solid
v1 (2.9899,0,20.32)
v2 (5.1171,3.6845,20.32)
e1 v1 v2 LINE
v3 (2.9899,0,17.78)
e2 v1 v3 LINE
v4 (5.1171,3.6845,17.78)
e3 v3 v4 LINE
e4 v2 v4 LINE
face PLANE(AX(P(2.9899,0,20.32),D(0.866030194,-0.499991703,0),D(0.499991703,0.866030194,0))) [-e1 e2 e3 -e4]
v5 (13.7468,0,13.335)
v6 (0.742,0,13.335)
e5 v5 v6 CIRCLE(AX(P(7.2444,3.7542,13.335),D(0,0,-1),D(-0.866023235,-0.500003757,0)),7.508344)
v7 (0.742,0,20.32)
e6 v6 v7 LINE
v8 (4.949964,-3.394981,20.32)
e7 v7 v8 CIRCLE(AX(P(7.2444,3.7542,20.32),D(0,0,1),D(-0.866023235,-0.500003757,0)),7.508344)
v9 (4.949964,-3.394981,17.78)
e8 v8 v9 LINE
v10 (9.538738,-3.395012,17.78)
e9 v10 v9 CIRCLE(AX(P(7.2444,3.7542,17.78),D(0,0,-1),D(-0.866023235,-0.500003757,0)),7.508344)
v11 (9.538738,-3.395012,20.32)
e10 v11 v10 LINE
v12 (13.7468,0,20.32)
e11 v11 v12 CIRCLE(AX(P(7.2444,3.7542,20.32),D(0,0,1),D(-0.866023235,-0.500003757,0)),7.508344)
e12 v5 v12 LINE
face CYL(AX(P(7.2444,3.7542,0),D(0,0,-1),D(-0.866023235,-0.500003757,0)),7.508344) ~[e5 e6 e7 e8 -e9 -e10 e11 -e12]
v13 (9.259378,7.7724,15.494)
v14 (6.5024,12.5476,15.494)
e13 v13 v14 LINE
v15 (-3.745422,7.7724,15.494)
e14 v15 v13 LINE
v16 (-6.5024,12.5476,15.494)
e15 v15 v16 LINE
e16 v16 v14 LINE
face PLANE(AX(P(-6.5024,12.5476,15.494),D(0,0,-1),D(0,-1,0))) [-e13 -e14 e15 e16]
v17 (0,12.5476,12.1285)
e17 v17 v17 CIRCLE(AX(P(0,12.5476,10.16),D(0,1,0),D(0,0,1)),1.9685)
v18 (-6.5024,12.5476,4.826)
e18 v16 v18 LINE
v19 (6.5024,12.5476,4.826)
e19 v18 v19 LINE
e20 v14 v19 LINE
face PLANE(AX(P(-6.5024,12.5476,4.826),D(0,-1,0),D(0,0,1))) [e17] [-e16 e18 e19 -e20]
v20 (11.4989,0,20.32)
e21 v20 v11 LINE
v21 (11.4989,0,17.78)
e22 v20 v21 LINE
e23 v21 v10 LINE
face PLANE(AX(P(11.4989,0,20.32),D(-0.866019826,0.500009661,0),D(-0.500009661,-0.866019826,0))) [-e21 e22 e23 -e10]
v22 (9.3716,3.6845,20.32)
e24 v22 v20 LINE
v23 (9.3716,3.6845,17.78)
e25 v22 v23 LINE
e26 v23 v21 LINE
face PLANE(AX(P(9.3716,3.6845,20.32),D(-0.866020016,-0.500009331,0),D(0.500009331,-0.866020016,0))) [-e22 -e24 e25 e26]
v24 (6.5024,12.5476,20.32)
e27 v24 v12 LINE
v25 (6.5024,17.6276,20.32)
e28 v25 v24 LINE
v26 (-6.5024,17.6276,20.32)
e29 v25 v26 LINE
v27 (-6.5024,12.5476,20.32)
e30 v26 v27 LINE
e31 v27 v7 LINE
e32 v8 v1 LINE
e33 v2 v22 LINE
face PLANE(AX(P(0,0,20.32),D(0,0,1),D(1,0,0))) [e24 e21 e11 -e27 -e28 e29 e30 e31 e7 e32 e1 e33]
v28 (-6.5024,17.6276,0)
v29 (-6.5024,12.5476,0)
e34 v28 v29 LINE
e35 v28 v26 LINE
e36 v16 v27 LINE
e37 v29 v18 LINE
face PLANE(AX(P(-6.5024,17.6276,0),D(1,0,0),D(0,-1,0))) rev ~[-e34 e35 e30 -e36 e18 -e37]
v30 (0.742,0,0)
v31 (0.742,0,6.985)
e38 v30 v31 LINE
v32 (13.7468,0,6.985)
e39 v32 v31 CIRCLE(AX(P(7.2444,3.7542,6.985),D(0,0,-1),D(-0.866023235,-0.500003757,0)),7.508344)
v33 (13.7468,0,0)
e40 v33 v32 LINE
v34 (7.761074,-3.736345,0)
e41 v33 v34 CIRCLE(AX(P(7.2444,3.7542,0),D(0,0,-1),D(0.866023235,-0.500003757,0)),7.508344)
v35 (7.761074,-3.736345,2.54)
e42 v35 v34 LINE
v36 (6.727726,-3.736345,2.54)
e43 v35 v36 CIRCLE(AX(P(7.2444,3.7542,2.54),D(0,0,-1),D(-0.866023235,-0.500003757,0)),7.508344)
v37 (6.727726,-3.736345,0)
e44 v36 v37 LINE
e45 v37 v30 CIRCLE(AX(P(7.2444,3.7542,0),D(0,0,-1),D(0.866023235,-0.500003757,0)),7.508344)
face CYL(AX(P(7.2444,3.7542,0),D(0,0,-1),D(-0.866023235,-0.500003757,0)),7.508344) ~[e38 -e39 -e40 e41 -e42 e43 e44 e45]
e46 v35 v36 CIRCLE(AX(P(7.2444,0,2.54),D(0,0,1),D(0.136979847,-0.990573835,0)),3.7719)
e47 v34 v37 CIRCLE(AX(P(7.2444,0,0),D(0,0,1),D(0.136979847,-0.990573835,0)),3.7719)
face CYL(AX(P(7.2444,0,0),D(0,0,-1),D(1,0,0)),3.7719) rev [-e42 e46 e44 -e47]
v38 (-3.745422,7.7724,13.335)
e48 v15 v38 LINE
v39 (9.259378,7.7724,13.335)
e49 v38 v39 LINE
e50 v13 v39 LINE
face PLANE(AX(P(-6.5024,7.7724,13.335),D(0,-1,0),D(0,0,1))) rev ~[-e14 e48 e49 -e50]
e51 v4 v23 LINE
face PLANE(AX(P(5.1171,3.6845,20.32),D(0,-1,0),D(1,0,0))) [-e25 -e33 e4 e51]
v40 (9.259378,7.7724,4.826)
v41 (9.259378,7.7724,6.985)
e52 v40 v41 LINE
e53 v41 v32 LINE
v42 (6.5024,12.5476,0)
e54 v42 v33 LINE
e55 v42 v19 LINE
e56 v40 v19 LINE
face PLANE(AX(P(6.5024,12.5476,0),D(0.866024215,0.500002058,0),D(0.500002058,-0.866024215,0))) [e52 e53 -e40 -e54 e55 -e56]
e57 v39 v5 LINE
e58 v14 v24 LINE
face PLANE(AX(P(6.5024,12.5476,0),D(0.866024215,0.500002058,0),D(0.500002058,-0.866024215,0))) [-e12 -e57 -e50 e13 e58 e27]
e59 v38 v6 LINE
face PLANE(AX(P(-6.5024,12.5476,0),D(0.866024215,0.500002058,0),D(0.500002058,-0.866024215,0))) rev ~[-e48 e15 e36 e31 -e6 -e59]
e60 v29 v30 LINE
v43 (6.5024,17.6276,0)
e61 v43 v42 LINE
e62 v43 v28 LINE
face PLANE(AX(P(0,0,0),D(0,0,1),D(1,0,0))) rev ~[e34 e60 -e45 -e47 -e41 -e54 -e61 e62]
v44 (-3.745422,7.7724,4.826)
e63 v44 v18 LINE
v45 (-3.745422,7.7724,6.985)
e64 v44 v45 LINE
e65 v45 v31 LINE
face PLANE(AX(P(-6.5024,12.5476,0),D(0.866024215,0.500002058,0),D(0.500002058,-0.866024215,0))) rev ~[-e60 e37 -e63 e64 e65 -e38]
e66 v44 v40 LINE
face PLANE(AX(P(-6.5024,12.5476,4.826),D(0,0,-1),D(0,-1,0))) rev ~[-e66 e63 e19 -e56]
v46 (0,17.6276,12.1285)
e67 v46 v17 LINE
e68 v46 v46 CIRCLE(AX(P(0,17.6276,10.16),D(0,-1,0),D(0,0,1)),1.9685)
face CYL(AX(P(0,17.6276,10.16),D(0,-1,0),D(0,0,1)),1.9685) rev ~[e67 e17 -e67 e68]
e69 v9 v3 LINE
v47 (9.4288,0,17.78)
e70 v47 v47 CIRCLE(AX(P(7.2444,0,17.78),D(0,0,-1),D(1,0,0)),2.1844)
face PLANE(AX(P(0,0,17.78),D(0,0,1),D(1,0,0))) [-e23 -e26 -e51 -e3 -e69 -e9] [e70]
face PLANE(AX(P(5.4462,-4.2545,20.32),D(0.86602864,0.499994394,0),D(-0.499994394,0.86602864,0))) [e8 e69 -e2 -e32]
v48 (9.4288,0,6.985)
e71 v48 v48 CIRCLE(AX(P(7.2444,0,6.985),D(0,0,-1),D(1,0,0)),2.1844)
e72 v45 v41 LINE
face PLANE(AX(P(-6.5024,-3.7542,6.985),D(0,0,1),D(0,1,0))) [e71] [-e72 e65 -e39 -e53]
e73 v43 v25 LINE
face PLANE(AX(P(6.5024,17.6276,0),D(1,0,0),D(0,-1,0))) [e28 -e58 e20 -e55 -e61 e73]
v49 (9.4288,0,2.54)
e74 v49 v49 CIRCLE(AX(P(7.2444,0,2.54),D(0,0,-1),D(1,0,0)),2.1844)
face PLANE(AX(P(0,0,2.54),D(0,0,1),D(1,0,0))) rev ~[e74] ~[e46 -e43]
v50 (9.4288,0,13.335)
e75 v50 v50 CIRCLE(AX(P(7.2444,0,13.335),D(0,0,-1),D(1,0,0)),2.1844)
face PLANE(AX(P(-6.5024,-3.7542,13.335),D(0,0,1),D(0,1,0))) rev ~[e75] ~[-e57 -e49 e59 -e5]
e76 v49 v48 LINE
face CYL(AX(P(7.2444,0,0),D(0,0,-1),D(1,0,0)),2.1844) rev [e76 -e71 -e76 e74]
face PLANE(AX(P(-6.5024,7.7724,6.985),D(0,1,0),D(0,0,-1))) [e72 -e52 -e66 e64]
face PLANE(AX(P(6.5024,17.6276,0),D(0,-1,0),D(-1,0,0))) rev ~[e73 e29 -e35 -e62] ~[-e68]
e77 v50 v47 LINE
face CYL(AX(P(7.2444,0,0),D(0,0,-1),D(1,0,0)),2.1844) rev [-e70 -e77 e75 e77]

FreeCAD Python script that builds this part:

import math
import FreeCAD as App
import Part
import Sketcher
Q = App.Units.Quantity

doc = App.newDocument("Part")
params = doc.addObject("Spreadsheet::Sheet", "Params")
for row, (alias, value) in enumerate([
    ("sketch1_height", "0.2 in"),
    ("sketch1_width", "0.512 in"),
    ("pad1_length", "0.8 in"),
    ("sketch2_diameter", "0.155 in"),
    ("hole_diameter", "0.155 in"),
    ("sketch3_width", "0.188 in"),
    ("sketch3_height", "0.42 in"),
    ("sketch3_height2", "0.25 in"),
    ("sketch4_diameter", "0.297 in"),
    ("pocket2_length", "0.1 in"),
    ("sketch5_diameter", "0.172 in"),
    ("pocket4_length", "0.1 in"),
], start=1):
    params.set(f"A{row}", alias)
    params.set(f"B{row}", "=" + value)
    params.setAlias(f"B{row}", alias)

body = doc.addObject("PartDesign::Body", "Body")

sketch1 = body.newObject("Sketcher::SketchObject", "Sketch")
sketch1.AttachmentSupport = (doc.getObject("XY_Plane"), [""])
sketch1.MapMode = "FlatFace"
sketch1.addGeometry([
    Part.LineSegment(App.Vector(7, 13, 0), App.Vector(7, 18, 0)),
    Part.LineSegment(App.Vector(7, 18, 0), App.Vector(-7, 18, 0)),
    Part.LineSegment(App.Vector(-7, 18, 0), App.Vector(-7, 13, 0)),
    Part.LineSegment(App.Vector(-7, 13, 0), App.Vector(1, 0, 0)),
    Part.ArcOfCircle(Part.Circle(App.Vector(7, 4, 0), App.Vector(0, 0, 1), 8), math.radians(-150), math.radians(-30)),
    Part.LineSegment(App.Vector(14, 0, 0), App.Vector(7, 13, 0)),
], False)
sketch1.addConstraint([
    Sketcher.Constraint("Coincident", 0, 2, 1, 1),
    Sketcher.Constraint("Coincident", 1, 2, 2, 1),
    Sketcher.Constraint("Coincident", 2, 2, 3, 1),
    Sketcher.Constraint("Tangent", 3, 2, 4, 1),
    Sketcher.Constraint("Coincident", 4, 2, 5, 1),
    Sketcher.Constraint("Coincident", 5, 2, 0, 1),
    Sketcher.Constraint("Vertical", 0),
    Sketcher.Constraint("Horizontal", 1),
    Sketcher.Constraint("Vertical", 2),
    Sketcher.Constraint("Symmetric", 2, 2, 5, 2, -2),
    Sketcher.Constraint("PointOnObject", 3, 2, -1),
    Sketcher.Constraint("PointOnObject", 4, 2, -1),
    Sketcher.Constraint("Parallel", 3, 5),
    Sketcher.Constraint("DistanceY", 0, 1, 0, 2, Q("0.2 in")),
    Sketcher.Constraint("Angle", 3, Q("-59.9999 deg")),
    Sketcher.Constraint("DistanceX", 1, 2, 1, 1, Q("0.512 in")),
    Sketcher.Constraint("DistanceY", -1, 1, 0, 2, Q("0.694 in")),
])
sketch1.setExpression("Constraints[13]", "Params.sketch1_height")
sketch1.setExpression("Constraints[15]", "Params.sketch1_width")
pad1 = body.newObject("PartDesign::Pad", "Pad")
pad1.Profile = sketch1
pad1.setExpression("Length", "Params.pad1_length")

sketch2 = body.newObject("Sketcher::SketchObject", "Sketch001")
sketch2.AttachmentSupport = (doc.getObject("XZ_Plane"), [""])
sketch2.MapMode = "FlatFace"
sketch2.AttachmentOffset = App.Placement(App.Vector(0, 0, -0.694 * 25.4), App.Rotation())
sketch2.addGeometry(Part.Circle(App.Vector(0, 10.2, 0), App.Vector(0, 0, 1), 2), False)
sketch2.addConstraint([
    Sketcher.Constraint("PointOnObject", 0, 3, -2),
    Sketcher.Constraint("Diameter", 0, Q("0.155 in")),
    Sketcher.Constraint("DistanceY", -1, 1, 0, 3, Q("0.4 in")),
])
sketch2.setExpression("Constraints[1]", "Params.sketch2_diameter")
doc.recompute()
hole = body.newObject("PartDesign::Hole", "Hole")
hole.Profile = sketch2
hole.ThreadType = "None"
hole.setExpression("Diameter", "Params.hole_diameter")
hole.DepthType = "ThroughAll"
hole.Reversed = True

sketch3 = body.newObject("Sketcher::SketchObject", "Sketch002")
sketch3.AttachmentSupport = (doc.getObject("YZ_Plane"), [""])
sketch3.MapMode = "FlatFace"
sketch3.AttachmentOffset = App.Placement(App.Vector(0, 0, -0.256 * 25.4), App.Rotation())
sketch3.addGeometry([
    Part.LineSegment(App.Vector(12.5, 15.5, 0), App.Vector(12.5, 4.8, 0)),
    Part.LineSegment(App.Vector(12.5, 4.8, 0), App.Vector(7.8, 4.8, 0)),
    Part.LineSegment(App.Vector(7.8, 4.8, 0), App.Vector(7.8, 7, 0)),
    Part.LineSegment(App.Vector(7.8, 7, 0), App.Vector(-3.8, 7, 0)),
    Part.LineSegment(App.Vector(-3.8, 7, 0), App.Vector(-3.8, 13.3, 0)),
    Part.LineSegment(App.Vector(-3.8, 13.3, 0), App.Vector(7.8, 13.3, 0)),
    Part.LineSegment(App.Vector(7.8, 13.3, 0), App.Vector(7.8, 15.5, 0)),
    Part.LineSegment(App.Vector(7.8, 15.5, 0), App.Vector(12.5, 15.5, 0)),
], False)
sketch3.addConstraint([
    Sketcher.Constraint("Coincident", 0, 2, 1, 1),
    Sketcher.Constraint("Coincident", 1, 2, 2, 1),
    Sketcher.Constraint("Coincident", 2, 2, 3, 1),
    Sketcher.Constraint("Coincident", 3, 2, 4, 1),
    Sketcher.Constraint("Coincident", 4, 2, 5, 1),
    Sketcher.Constraint("Coincident", 5, 2, 6, 1),
    Sketcher.Constraint("Coincident", 6, 2, 7, 1),
    Sketcher.Constraint("Coincident", 7, 2, 0, 1),
    Sketcher.Constraint("Vertical", 0),
    Sketcher.Constraint("Horizontal", 1),
    Sketcher.Constraint("Vertical", 2),
    Sketcher.Constraint("Horizontal", 3),
    Sketcher.Constraint("Vertical", 4),
    Sketcher.Constraint("Horizontal", 5),
    Sketcher.Constraint("Vertical", 6),
    Sketcher.Constraint("Horizontal", 7),
    Sketcher.Constraint("Vertical", 2, 2, 5, 2),
    Sketcher.Constraint("Equal", 2, 6),
    Sketcher.Constraint("DistanceX", 1, 2, 1, 1, Q("0.188 in")),
    Sketcher.Constraint("DistanceY", 0, 2, 0, 1, Q("0.42 in")),
    Sketcher.Constraint("DistanceY", 4, 1, 4, 2, Q("0.25 in")),
    Sketcher.Constraint("DistanceY", -1, 1, 0, 2, Q("0.19 in")),
    Sketcher.Constraint("DistanceX", 3, 2, 3, 1, Q("0.4538 in")),
    Sketcher.Constraint("DistanceX", -1, 1, 0, 2, Q("0.494 in")),
])
sketch3.setExpression("Constraints[18]", "Params.sketch3_width")
sketch3.setExpression("Constraints[19]", "Params.sketch3_height")
sketch3.setExpression("Constraints[20]", "Params.sketch3_height2")
pocket1 = body.newObject("PartDesign::Pocket", "Pocket")
pocket1.Profile = sketch3
pocket1.Type = "ThroughAll"
pocket1.Reversed = True

sketch4 = body.newObject("Sketcher::SketchObject", "Sketch003")
sketch4.AttachmentSupport = (doc.getObject("XY_Plane"), [""])
sketch4.MapMode = "FlatFace"
sketch4.addGeometry(Part.Circle(App.Vector(7.2, 0, 0), App.Vector(0, 0, 1), 3.8), False)
sketch4.addConstraint([
    Sketcher.Constraint("PointOnObject", 0, 3, -1),
    Sketcher.Constraint("Diameter", 0, Q("0.297 in")),
    Sketcher.Constraint("DistanceX", -1, 1, 0, 3, 7.2444),
])
sketch4.setExpression("Constraints[1]", "Params.sketch4_diameter")
pocket2 = body.newObject("PartDesign::Pocket", "Pocket001")
pocket2.Profile = sketch4
pocket2.setExpression("Length", "Params.pocket2_length")
pocket2.Reversed = True

sketch5 = body.newObject("Sketcher::SketchObject", "Sketch004")
sketch5.AttachmentSupport = (doc.getObject("XY_Plane"), [""])
sketch5.MapMode = "FlatFace"
sketch5.addGeometry(Part.Circle(App.Vector(7.2, 0, 0), App.Vector(0, 0, 1), 2.2), False)
sketch5.addConstraint([
    Sketcher.Constraint("PointOnObject", 0, 3, -1),
    Sketcher.Constraint("Diameter", 0, Q("0.172 in")),
    Sketcher.Constraint("DistanceX", -1, 1, 0, 3, 7.2444),
])
sketch5.setExpression("Constraints[1]", "Params.sketch5_diameter")
pocket3 = body.newObject("PartDesign::Pocket", "Pocket002")
pocket3.Profile = sketch5
pocket3.Type = "ThroughAll"
pocket3.Reversed = True

sketch6 = body.newObject("Sketcher::SketchObject", "Sketch005")
sketch6.AttachmentSupport = (doc.getObject("XY_Plane"), [""])
sketch6.MapMode = "FlatFace"
sketch6.AttachmentOffset = App.Placement(App.Vector(0, 0, 0.8 * 25.4), App.Rotation())
sketch6.addGeometry([
    Part.LineSegment(App.Vector(9, -4.3, 0), App.Vector(11.5, 0, 0)),
    Part.LineSegment(App.Vector(11.5, 0, 0), App.Vector(9.4, 3.7, 0)),
    Part.LineSegment(App.Vector(9.4, 3.7, 0), App.Vector(5.1, 3.7, 0)),
    Part.LineSegment(App.Vector(5.1, 3.7, 0), App.Vector(3, 0, 0)),
    Part.LineSegment(App.Vector(3, 0, 0), App.Vector(5.4, -4.3, 0)),
    Part.LineSegment(App.Vector(5.4, -4.3, 0), App.Vector(9, -4.3, 0)),
], False)
sketch6.addConstraint([
    Sketcher.Constraint("Coincident", 0, 2, 1, 1),
    Sketcher.Constraint("Coincident", 1, 2, 2, 1),
    Sketcher.Constraint("Coincident", 2, 2, 3, 1),
    Sketcher.Constraint("Coincident", 3, 2, 4, 1),
    Sketcher.Constraint("Coincident", 4, 2, 5, 1),
    Sketcher.Constraint("Coincident", 5, 2, 0, 1),
    Sketcher.Constraint("Horizontal", 2),
    Sketcher.Constraint("Horizontal", 5),
    Sketcher.Constraint("PointOnObject", 0, 2, -1),
    Sketcher.Constraint("PointOnObject", 3, 2, -1),
    Sketcher.Constraint("Parallel", 0, 3),
    Sketcher.Constraint("Parallel", 1, 4),
    Sketcher.Constraint("Equal", 1, 3),
    Sketcher.Constraint("Angle", 0, Q("59.9994 deg")),
    Sketcher.Constraint("DistanceX", 3, 2, 0, 2, Q("0.335 in")),
    Sketcher.Constraint("DistanceX", 2, 2, 2, 1, Q("0.1675 in")),
    Sketcher.Constraint("DistanceX", -1, 1, 5, 2, Q("0.356 in")),
    Sketcher.Constraint("Distance", 4, Q("0.1934 in")),
])
pocket4 = body.newObject("PartDesign::Pocket", "Pocket003")
pocket4.Profile = sketch6
pocket4.setExpression("Length", "Params.pocket4_length")

doc.recompute()
